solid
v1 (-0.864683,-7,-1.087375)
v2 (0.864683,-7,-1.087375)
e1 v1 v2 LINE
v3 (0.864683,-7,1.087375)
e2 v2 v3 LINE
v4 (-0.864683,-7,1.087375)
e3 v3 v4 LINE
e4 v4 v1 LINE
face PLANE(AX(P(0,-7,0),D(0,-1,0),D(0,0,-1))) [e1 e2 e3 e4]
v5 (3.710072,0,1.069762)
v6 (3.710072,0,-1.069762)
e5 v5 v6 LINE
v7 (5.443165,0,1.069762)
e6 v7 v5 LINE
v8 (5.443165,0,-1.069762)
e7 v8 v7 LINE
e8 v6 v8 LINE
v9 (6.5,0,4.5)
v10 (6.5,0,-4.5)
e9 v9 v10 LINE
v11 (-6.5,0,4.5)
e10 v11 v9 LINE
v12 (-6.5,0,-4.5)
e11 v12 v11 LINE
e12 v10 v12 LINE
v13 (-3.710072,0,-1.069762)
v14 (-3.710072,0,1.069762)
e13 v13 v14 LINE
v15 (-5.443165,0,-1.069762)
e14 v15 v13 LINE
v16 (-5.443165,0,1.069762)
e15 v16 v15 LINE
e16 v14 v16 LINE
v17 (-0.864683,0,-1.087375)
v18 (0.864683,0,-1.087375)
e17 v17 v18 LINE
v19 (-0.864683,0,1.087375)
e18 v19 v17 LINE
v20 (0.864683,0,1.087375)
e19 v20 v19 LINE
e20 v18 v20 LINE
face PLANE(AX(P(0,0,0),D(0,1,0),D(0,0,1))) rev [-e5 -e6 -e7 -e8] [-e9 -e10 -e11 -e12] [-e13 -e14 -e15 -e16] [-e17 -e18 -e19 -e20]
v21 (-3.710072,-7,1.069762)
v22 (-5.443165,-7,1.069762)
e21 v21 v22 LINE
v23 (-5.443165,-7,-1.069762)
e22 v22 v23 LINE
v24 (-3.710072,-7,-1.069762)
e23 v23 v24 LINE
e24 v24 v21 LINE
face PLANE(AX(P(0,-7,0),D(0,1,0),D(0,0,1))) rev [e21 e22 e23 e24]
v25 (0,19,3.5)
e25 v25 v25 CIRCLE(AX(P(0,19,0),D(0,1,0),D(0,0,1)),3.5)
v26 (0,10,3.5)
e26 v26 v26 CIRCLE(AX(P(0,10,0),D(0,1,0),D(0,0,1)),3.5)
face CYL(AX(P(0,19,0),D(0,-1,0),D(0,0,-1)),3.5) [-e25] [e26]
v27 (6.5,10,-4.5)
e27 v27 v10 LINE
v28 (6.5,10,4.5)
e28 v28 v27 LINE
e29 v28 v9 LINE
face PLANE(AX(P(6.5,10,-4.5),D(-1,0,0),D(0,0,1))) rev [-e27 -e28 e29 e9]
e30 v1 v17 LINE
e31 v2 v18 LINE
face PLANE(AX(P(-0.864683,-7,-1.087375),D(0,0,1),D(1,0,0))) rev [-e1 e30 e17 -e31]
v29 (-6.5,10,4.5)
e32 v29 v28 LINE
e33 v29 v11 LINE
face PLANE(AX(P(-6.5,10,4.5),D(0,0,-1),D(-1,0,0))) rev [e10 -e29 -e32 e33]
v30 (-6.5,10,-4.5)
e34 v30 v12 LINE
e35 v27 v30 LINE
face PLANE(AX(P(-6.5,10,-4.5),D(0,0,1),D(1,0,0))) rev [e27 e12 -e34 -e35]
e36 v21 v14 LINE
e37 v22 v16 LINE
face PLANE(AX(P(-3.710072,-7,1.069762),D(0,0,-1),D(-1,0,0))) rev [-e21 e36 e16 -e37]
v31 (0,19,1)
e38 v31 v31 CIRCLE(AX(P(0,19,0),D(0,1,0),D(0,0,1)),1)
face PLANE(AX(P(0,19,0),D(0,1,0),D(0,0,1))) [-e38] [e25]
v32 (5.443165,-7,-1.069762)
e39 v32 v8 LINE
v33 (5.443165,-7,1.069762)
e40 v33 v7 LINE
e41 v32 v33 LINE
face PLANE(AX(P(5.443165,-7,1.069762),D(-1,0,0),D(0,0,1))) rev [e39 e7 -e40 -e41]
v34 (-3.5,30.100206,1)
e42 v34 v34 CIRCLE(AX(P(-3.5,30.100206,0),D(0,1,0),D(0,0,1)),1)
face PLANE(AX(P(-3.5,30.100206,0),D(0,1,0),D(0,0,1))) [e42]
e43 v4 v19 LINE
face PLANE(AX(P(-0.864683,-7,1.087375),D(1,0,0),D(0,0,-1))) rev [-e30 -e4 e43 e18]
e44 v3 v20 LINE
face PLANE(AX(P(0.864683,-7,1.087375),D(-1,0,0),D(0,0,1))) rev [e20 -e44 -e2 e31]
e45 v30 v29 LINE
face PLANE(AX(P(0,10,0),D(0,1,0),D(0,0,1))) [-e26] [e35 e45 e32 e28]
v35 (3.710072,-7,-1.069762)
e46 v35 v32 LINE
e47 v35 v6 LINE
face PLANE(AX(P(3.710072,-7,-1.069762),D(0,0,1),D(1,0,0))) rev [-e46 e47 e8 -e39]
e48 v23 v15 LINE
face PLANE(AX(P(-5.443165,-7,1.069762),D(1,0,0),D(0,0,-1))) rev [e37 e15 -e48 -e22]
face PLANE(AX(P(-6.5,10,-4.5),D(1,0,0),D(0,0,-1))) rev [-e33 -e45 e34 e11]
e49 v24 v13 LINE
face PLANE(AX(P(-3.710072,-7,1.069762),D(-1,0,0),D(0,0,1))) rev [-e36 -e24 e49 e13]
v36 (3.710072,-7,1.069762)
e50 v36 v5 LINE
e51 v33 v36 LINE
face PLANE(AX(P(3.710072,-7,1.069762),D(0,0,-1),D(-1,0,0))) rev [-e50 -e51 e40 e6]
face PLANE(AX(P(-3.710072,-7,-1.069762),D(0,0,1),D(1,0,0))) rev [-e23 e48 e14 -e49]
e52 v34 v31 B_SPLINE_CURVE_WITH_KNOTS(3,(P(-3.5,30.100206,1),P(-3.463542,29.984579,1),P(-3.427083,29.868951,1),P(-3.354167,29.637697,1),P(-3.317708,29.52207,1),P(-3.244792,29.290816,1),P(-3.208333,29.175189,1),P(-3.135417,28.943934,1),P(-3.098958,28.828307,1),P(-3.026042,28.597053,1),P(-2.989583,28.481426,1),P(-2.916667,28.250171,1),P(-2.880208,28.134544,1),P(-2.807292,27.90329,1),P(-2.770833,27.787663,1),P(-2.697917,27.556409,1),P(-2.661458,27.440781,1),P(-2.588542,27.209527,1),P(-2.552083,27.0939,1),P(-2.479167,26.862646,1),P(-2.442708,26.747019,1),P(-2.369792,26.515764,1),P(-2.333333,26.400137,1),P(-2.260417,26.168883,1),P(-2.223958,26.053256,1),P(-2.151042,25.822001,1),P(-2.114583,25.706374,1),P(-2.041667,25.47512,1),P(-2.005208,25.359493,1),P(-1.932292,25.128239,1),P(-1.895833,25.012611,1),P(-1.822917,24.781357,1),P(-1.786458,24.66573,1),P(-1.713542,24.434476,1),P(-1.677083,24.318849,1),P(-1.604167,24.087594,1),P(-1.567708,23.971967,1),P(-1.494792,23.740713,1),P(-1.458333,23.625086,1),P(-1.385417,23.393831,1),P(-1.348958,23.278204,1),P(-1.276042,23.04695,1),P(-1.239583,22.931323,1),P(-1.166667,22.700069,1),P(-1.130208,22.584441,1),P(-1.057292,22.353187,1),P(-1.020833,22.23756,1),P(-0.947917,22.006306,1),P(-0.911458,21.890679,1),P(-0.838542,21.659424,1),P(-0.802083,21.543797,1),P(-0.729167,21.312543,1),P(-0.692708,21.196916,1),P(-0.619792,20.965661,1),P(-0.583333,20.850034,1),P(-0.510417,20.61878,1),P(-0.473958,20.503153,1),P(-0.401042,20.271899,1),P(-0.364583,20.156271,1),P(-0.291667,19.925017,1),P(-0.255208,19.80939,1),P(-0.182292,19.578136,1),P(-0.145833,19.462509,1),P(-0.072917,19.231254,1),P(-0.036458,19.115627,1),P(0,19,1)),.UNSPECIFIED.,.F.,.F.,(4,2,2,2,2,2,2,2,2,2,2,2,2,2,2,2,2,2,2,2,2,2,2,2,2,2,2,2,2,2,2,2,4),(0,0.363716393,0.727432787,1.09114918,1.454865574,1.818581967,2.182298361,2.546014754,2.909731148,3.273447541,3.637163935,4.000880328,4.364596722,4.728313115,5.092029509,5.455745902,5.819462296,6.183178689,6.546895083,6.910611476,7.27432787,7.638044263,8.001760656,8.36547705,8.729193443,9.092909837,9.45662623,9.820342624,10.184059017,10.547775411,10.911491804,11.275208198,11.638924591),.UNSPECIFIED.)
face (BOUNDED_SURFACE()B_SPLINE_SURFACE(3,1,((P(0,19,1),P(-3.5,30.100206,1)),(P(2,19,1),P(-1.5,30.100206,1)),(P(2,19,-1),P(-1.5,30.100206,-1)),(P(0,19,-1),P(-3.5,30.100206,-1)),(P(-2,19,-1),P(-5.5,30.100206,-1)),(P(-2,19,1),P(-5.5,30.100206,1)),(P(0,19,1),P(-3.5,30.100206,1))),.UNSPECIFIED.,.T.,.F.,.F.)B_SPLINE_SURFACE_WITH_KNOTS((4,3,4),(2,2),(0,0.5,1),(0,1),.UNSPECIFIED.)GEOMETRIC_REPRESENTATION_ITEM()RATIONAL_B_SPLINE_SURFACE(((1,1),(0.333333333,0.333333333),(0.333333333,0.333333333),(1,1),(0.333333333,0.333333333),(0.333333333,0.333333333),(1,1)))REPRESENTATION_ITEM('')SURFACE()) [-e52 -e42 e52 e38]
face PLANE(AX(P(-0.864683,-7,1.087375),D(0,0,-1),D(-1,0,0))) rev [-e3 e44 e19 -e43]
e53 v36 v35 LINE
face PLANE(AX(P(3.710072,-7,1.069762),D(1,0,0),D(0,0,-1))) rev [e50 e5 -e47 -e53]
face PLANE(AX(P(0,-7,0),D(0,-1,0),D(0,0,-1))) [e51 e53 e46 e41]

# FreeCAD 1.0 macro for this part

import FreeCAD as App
import Part
import Sketcher

doc = App.newDocument("Part")
body = doc.addObject("PartDesign::Body", "Body")

sketch1 = doc.addObject("Sketcher::SketchObject", "Sketch")
body.addObject(sketch1)
sketch1.AttachmentSupport = (doc.XZ_Plane, [""])
sketch1.MapMode = "FlatFace"
sketch1.addGeometry([
    Part.LineSegment(App.Vector(-6, -4, 0), App.Vector(-6, 4, 0)),
    Part.LineSegment(App.Vector(-6, 4, 0), App.Vector(6, 4, 0)),
    Part.LineSegment(App.Vector(6, 4, 0), App.Vector(6, -4, 0)),
    Part.LineSegment(App.Vector(6, -4, 0), App.Vector(-6, -4, 0)),
], False)
sketch1.addConstraint([
    Sketcher.Constraint("Coincident", 0, 2, 1, 1),
    Sketcher.Constraint("Coincident", 1, 2, 2, 1),
    Sketcher.Constraint("Coincident", 2, 2, 3, 1),
    Sketcher.Constraint("Coincident", 3, 2, 0, 1),
    Sketcher.Constraint("Vertical", 0),
    Sketcher.Constraint("Horizontal", 1),
    Sketcher.Constraint("Vertical", 2),
    Sketcher.Constraint("Horizontal", 3),
    Sketcher.Constraint("Symmetric", 0, 2, 2, 2, -1, 1),
    Sketcher.Constraint("DistanceX", 1, 1, 1, 2, 13.0),
    Sketcher.Constraint("DistanceY", 0, 1, 0, 2, 9.0),
])
pad1 = doc.addObject("PartDesign::Pad", "Pad")
body.addObject(pad1)
pad1.Profile = sketch1
pad1.Length = 10
pad1.Reversed = True

sketch2 = doc.addObject("Sketcher::SketchObject", "Sketch001")
body.addObject(sketch2)
sketch2.AttachmentSupport = (doc.XZ_Plane, [""])
sketch2.MapMode = "FlatFace"
sketch2.AttachmentOffset = App.Placement(App.Vector(0, 0, -10), App.Rotation())
sketch2.addGeometry(Part.Circle(App.Vector(0, 0, 0), App.Vector(0, 0, 1), 3.5), False)
sketch2.addConstraint([
    Sketcher.Constraint("Coincident", 0, 3, -1, 1),
    Sketcher.Constraint("Diameter", 0, 7.0),
])
pad2 = doc.addObject("PartDesign::Pad", "Pad001")
body.addObject(pad2)
pad2.Profile = sketch2
pad2.Length = 9
pad2.Reversed = True

sketch3 = doc.addObject("Sketcher::SketchObject", "Sketch002")
body.addObject(sketch3)
sketch3.AttachmentSupport = (doc.XZ_Plane, [""])
sketch3.MapMode = "FlatFace"
sketch3.AttachmentOffset = App.Placement(App.Vector(0, 0, -19), App.Rotation())
sketch3.addGeometry(Part.Circle(App.Vector(0, 0, 0), App.Vector(0, 0, 1), 1), False)
sketch3.addConstraint([
    Sketcher.Constraint("Coincident", 0, 3, -1, 1),
    Sketcher.Constraint("Diameter", 0, 2.0),
])

sketch4 = doc.addObject("Sketcher::SketchObject", "Sketch003")
body.addObject(sketch4)
sketch4.Placement = App.Placement(App.Vector(5.449127, 1.718161, 0), App.Rotation(App.Vector(-0.300715068, 0.953714028, 0), App.Vector(0, 0, 0.999999999), App.Vector(0.953714028, 0.300715068, 0), "ZXY"))
sketch4.addGeometry(Part.LineSegment(App.Vector(18, 0, 0), App.Vector(30, 0, 0)), False)
sketch4.addConstraint([
    Sketcher.Constraint("Horizontal", 0),
    Sketcher.Constraint("PointOnObject", 0, 1, -1),
    Sketcher.Constraint("DistanceX", 0, 1, 0, 2, 11.638925),
    Sketcher.Constraint("DistanceX", -1, 1, 0, 2, 29.759491),
])
doc.recompute()

additivepipe = doc.addObject("PartDesign::AdditivePipe", "AdditivePipe")
body.addObject(additivepipe)
additivepipe.Profile = sketch3
additivepipe.Spine = (sketch4, ["Edge1"])

sketch5 = doc.addObject("Sketcher::SketchObject", "Sketch004")
body.addObject(sketch5)
sketch5.AttachmentSupport = (doc.XZ_Plane, [""])
sketch5.MapMode = "FlatFace"
sketch5.addGeometry([
    Part.LineSegment(App.Vector(5.4, -1.1, 0), App.Vector(5.4, 1.1, 0)),
    Part.LineSegment(App.Vector(5.4, 1.1, 0), App.Vector(3.7, 1.1, 0)),
    Part.LineSegment(App.Vector(3.7, 1.1, 0), App.Vector(3.7, -1.1, 0)),
    Part.LineSegment(App.Vector(3.7, -1.1, 0), App.Vector(5.4, -1.1, 0)),
    Part.LineSegment(App.Vector(-3.7, -1.1, 0), App.Vector(-3.7, 1.1, 0)),
    Part.LineSegment(App.Vector(-3.7, 1.1, 0), App.Vector(-5.4, 1.1, 0)),
    Part.LineSegment(App.Vector(-5.4, 1.1, 0), App.Vector(-5.4, -1.1, 0)),
    Part.LineSegment(App.Vector(-5.4, -1.1, 0), App.Vector(-3.7, -1.1, 0)),
    Part.LineSegment(App.Vector(0.9, -1.1, 0), App.Vector(0.9, 1.1, 0)),
    Part.LineSegment(App.Vector(0.9, 1.1, 0), App.Vector(-0.9, 1.1, 0)),
    Part.LineSegment(App.Vector(-0.9, 1.1, 0), App.Vector(-0.9, -1.1, 0)),
    Part.LineSegment(App.Vector(-0.9, -1.1, 0), App.Vector(0.9, -1.1, 0)),
], False)
sketch5.addConstraint([
    Sketcher.Constraint("Coincident", 0, 2, 1, 1),
    Sketcher.Constraint("Coincident", 1, 2, 2, 1),
    Sketcher.Constraint("Coincident", 2, 2, 3, 1),
    Sketcher.Constraint("Coincident", 3, 2, 0, 1),
    Sketcher.Constraint("Coincident", 4, 2, 5, 1),
    Sketcher.Constraint("Coincident", 5, 2, 6, 1),
    Sketcher.Constraint("Coincident", 6, 2, 7, 1),
    Sketcher.Constraint("Coincident", 7, 2, 4, 1),
    Sketcher.Constraint("Coincident", 8, 2, 9, 1),
    Sketcher.Constraint("Coincident", 9, 2, 10, 1),
    Sketcher.Constraint("Coincident", 10, 2, 11, 1),
    Sketcher.Constraint("Coincident", 11, 2, 8, 1),
    Sketcher.Constraint("Vertical", 0),
    Sketcher.Constraint("Horizontal", 1),
    Sketcher.Constraint("Vertical", 2),
    Sketcher.Constraint("Horizontal", 3),
    Sketcher.Constraint("Vertical", 4),
    Sketcher.Constraint("Horizontal", 5),
    Sketcher.Constraint("Vertical", 6),
    Sketcher.Constraint("Horizontal", 7),
    Sketcher.Constraint("Vertical", 8),
    Sketcher.Constraint("Horizontal", 9),
    Sketcher.Constraint("Vertical", 10),
    Sketcher.Constraint("Horizontal", 11),
    Sketcher.Constraint("Symmetric", 2, 2, 4, 2, -1, 1),
    Sketcher.Constraint("Symmetric", 0, 2, 6, 2, -1, 1),
    Sketcher.Constraint("Symmetric", 8, 2, 10, 2, -1, 1),
    Sketcher.Constraint("Horizontal", 1, 2, 4, 2),
    Sketcher.Constraint("DistanceY", 8, 1, 8, 2, 2.17475),
    Sketcher.Constraint("DistanceX", 1, 2, 1, 1, 1.733093),
    Sketcher.Constraint("DistanceX", 9, 2, 9, 1, 1.729367),
    Sketcher.Constraint("DistanceY", 0, 1, 0, 2, 2.139523),
    Sketcher.Constraint("DistanceX", 5, 2, 0, 2, 10.88633),
])
pad3 = doc.addObject("PartDesign::Pad", "Pad002")
body.addObject(pad3)
pad3.Profile = sketch5
pad3.Length = 7

doc.recompute()
